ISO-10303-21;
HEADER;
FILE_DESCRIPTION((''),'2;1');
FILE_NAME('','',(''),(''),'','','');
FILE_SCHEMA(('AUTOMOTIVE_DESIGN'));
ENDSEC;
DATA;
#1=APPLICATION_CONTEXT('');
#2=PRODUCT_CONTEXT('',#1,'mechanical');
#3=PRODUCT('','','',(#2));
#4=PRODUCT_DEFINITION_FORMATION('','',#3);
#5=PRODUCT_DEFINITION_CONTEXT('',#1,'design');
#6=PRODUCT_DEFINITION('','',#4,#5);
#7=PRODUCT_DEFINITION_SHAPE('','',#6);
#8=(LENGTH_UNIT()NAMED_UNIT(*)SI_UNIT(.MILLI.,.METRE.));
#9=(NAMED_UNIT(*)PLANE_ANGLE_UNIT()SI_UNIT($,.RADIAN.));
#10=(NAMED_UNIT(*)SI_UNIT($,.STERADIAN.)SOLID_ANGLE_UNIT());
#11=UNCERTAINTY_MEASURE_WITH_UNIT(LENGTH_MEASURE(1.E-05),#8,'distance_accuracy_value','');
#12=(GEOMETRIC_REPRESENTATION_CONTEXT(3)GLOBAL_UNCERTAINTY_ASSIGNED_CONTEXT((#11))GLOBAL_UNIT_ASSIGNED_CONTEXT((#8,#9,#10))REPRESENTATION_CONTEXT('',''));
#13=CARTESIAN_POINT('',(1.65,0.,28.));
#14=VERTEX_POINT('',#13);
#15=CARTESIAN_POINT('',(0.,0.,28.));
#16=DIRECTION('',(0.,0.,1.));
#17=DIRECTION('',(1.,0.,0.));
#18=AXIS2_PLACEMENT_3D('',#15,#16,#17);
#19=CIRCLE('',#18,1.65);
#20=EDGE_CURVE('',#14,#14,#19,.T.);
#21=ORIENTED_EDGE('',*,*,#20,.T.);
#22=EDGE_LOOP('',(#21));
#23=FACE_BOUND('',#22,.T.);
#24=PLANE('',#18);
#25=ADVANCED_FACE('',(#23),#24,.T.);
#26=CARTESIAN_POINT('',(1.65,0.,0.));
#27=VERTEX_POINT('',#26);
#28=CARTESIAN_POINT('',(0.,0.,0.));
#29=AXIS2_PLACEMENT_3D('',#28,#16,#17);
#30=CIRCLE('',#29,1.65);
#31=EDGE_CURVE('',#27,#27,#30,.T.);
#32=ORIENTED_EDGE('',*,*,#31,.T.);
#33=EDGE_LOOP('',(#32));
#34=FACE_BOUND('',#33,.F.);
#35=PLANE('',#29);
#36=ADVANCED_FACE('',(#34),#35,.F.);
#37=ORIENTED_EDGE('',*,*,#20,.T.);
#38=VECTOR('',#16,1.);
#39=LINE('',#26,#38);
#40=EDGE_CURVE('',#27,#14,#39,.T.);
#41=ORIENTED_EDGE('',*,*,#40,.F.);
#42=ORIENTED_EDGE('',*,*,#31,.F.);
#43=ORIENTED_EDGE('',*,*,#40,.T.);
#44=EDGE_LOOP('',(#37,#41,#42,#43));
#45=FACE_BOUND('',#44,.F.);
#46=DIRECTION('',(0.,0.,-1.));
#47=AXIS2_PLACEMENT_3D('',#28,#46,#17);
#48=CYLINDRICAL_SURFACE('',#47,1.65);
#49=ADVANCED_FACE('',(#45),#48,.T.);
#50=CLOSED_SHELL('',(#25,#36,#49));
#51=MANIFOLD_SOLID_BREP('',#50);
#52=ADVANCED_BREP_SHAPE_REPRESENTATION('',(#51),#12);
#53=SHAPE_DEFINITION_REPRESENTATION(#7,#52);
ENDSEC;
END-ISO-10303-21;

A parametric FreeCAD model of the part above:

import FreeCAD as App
import Part
import Sketcher
from FreeCAD import Vector
Q = App.Units.Quantity

doc = App.newDocument("Part")
body = doc.addObject("PartDesign::Body", "Body")

# Sketch on XY plane
sketch1 = doc.addObject("Sketcher::SketchObject", "Sketch")
body.addObject(sketch1)
sketch1.AttachmentSupport = (doc.XY_Plane, [""])
sketch1.MapMode = "FlatFace"
sketch1.addGeometry(Part.Circle(Vector(0, 0, 0), Vector(0, 0, 1), 1.6), False)
sketch1.addConstraint([
    Sketcher.Constraint("Coincident", 0, 3, -1, 1),
    Sketcher.Constraint("Diameter", 0, Q("3.3 mm")),
])
pad1 = doc.addObject("PartDesign::Pad", "Pad")
body.addObject(pad1)
pad1.Profile = sketch1
pad1.Length = 28

doc.recompute()
